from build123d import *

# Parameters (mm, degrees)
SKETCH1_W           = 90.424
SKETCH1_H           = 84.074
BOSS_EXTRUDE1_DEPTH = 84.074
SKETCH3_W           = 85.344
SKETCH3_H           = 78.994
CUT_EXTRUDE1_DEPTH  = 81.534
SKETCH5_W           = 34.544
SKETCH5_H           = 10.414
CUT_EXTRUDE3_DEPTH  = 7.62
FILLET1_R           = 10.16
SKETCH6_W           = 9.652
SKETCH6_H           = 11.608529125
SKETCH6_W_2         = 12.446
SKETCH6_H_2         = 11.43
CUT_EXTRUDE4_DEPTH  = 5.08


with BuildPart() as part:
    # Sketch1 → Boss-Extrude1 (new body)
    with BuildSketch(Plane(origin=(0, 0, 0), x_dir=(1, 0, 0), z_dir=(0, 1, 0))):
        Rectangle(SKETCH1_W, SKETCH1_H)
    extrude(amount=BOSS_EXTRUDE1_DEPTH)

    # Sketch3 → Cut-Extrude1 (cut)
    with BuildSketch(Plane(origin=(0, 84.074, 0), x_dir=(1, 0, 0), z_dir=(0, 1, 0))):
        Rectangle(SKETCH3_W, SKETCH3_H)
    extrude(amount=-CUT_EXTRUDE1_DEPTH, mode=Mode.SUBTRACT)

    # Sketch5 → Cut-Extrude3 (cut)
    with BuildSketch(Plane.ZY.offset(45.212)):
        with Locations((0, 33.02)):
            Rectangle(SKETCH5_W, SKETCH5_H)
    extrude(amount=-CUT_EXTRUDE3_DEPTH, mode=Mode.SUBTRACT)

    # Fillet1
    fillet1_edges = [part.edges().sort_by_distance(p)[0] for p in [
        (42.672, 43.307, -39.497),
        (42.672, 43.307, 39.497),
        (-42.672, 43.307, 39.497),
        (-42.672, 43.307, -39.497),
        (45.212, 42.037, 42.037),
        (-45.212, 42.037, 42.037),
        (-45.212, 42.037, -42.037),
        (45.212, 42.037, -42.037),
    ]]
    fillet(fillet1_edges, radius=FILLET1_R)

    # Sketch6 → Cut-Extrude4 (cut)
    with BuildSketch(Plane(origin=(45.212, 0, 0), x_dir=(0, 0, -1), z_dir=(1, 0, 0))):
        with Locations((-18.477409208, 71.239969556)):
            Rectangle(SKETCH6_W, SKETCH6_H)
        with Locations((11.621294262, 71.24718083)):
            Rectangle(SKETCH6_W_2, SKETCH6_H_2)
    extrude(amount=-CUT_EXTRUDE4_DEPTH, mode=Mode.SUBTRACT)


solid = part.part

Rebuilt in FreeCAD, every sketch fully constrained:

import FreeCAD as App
import Part
import Sketcher
Q = App.Units.Quantity


def edges_at(feature, points):
    """Names of the edges that pass closest to the given points."""
    edges = feature.Shape.Edges
    near = lambda p: min(range(len(edges)), key=lambda i: edges[i].distToShape(Part.Vertex(*p))[0])
    return sorted({f"Edge{near(p) + 1}" for p in points})

doc = App.newDocument("Part")
body = doc.addObject("PartDesign::Body", "Body")

sketch1 = body.newObject("Sketcher::SketchObject", "Sketch")
sketch1.AttachmentSupport = (doc.getObject("XZ_Plane"), [""])
sketch1.MapMode = "FlatFace"
sketch1.addGeometry(Part.LineSegment(App.Vector(-45, -42, 0), App.Vector(-45, 42, 0)), False)
sketch1.addGeometry(Part.LineSegment(App.Vector(-45, 42, 0), App.Vector(45, 42, 0)), False)
sketch1.addGeometry(Part.LineSegment(App.Vector(45, 42, 0), App.Vector(45, -42, 0)), False)
sketch1.addGeometry(Part.LineSegment(App.Vector(45, -42, 0), App.Vector(-45, -42, 0)), False)
sketch1.addConstraint(Sketcher.Constraint("Coincident", 0, 2, 1, 1))
sketch1.addConstraint(Sketcher.Constraint("Coincident", 1, 2, 2, 1))
sketch1.addConstraint(Sketcher.Constraint("Coincident", 2, 2, 3, 1))
sketch1.addConstraint(Sketcher.Constraint("Coincident", 3, 2, 0, 1))
sketch1.addConstraint(Sketcher.Constraint("Vertical", 0))
sketch1.addConstraint(Sketcher.Constraint("Horizontal", 1))
sketch1.addConstraint(Sketcher.Constraint("Vertical", 2))
sketch1.addConstraint(Sketcher.Constraint("Horizontal", 3))
sketch1.addConstraint(Sketcher.Constraint("Symmetric", 0, 2, 2, 2, -1, 1))
sketch1.addConstraint(Sketcher.Constraint("DistanceX", 1, 1, 1, 2, Q("3.56 in")))
sketch1.addConstraint(Sketcher.Constraint("DistanceY", 0, 1, 0, 2, Q("3.31 in")))
pad1 = body.newObject("PartDesign::Pad", "Pad")
pad1.Profile = sketch1
pad1.Length = Q("3.31 in")
pad1.Reversed = True

sketch2 = body.newObject("Sketcher::SketchObject", "Sketch001")
sketch2.AttachmentSupport = (doc.getObject("XZ_Plane"), [""])
sketch2.MapMode = "FlatFace"
sketch2.AttachmentOffset = App.Placement(App.Vector(0, 0, -3.31 * 25.4), App.Rotation())
sketch2.addGeometry(Part.LineSegment(App.Vector(-43, -39, 0), App.Vector(-43, 39, 0)), False)
sketch2.addGeometry(Part.LineSegment(App.Vector(-43, 39, 0), App.Vector(43, 39, 0)), False)
sketch2.addGeometry(Part.LineSegment(App.Vector(43, 39, 0), App.Vector(43, -39, 0)), False)
sketch2.addGeometry(Part.LineSegment(App.Vector(43, -39, 0), App.Vector(-43, -39, 0)), False)
sketch2.addConstraint(Sketcher.Constraint("Coincident", 0, 2, 1, 1))
sketch2.addConstraint(Sketcher.Constraint("Coincident", 1, 2, 2, 1))
sketch2.addConstraint(Sketcher.Constraint("Coincident", 2, 2, 3, 1))
sketch2.addConstraint(Sketcher.Constraint("Coincident", 3, 2, 0, 1))
sketch2.addConstraint(Sketcher.Constraint("Vertical", 0))
sketch2.addConstraint(Sketcher.Constraint("Horizontal", 1))
sketch2.addConstraint(Sketcher.Constraint("Vertical", 2))
sketch2.addConstraint(Sketcher.Constraint("Horizontal", 3))
sketch2.addConstraint(Sketcher.Constraint("Symmetric", 0, 2, 2, 2, -1, 1))
sketch2.addConstraint(Sketcher.Constraint("DistanceX", 1, 1, 1, 2, Q("3.36 in")))
sketch2.addConstraint(Sketcher.Constraint("DistanceY", 0, 1, 0, 2, Q("3.11 in")))
pocket1 = body.newObject("PartDesign::Pocket", "Pocket")
pocket1.Profile = sketch2
pocket1.Length = Q("3.21 in")
pocket1.Reversed = True

sketch3 = body.newObject("Sketcher::SketchObject", "Sketch002")
sketch3.AttachmentSupport = (doc.getObject("YZ_Plane"), [""])
sketch3.MapMode = "FlatFace"
sketch3.AttachmentOffset = App.Placement(App.Vector(0, 0, -1.78 * 25.4), App.Rotation())
sketch3.addGeometry(Part.LineSegment(App.Vector(38, -17, 0), App.Vector(28, -17, 0)), False)
sketch3.addGeometry(Part.LineSegment(App.Vector(28, -17, 0), App.Vector(28, 17, 0)), False)
sketch3.addGeometry(Part.LineSegment(App.Vector(28, 17, 0), App.Vector(38, 17, 0)), False)
sketch3.addGeometry(Part.LineSegment(App.Vector(38, 17, 0), App.Vector(38, -17, 0)), False)
sketch3.addConstraint(Sketcher.Constraint("Coincident", 0, 2, 1, 1))
sketch3.addConstraint(Sketcher.Constraint("Coincident", 1, 2, 2, 1))
sketch3.addConstraint(Sketcher.Constraint("Coincident", 2, 2, 3, 1))
sketch3.addConstraint(Sketcher.Constraint("Coincident", 3, 2, 0, 1))
sketch3.addConstraint(Sketcher.Constraint("Horizontal", 0))
sketch3.addConstraint(Sketcher.Constraint("Vertical", 1))
sketch3.addConstraint(Sketcher.Constraint("Horizontal", 2))
sketch3.addConstraint(Sketcher.Constraint("Vertical", 3))
sketch3.addConstraint(Sketcher.Constraint("DistanceX", 0, 2, 0, 1, Q("0.41 in")))
sketch3.addConstraint(Sketcher.Constraint("DistanceY", 1, 1, 1, 2, Q("1.36 in")))
sketch3.addConstraint(Sketcher.Constraint("DistanceY", 0, 2, -1, 1, Q("0.68 in")))
sketch3.addConstraint(Sketcher.Constraint("DistanceX", -1, 1, 0, 2, Q("1.095 in")))
pocket2 = body.newObject("PartDesign::Pocket", "Pocket001")
pocket2.Profile = sketch3
pocket2.Length = Q("0.3 in")
pocket2.Reversed = True
doc.recompute()

fillet = body.newObject("PartDesign::Fillet", "Fillet")
fillet.Base = (pocket2, edges_at(pocket2, [
    (42.672, 43.307, -39.497),
    (42.672, 43.307, 39.497),
    (-42.672, 43.307, 39.497),
    (-42.672, 43.307, -39.497),
    (45.212, 42.037, 42.037),
    (-45.212, 42.037, 42.037),
    (-45.212, 42.037, -42.037),
    (45.212, 42.037, -42.037),
]))
fillet.Radius = Q("0.4 in")

sketch4 = body.newObject("Sketcher::SketchObject", "Sketch003")
sketch4.AttachmentSupport = (doc.getObject("YZ_Plane"), [""])
sketch4.MapMode = "FlatFace"
sketch4.AttachmentOffset = App.Placement(App.Vector(0, 0, 1.78 * 25.4), App.Rotation())
sketch4.addGeometry(Part.LineSegment(App.Vector(77, 23, 0), App.Vector(65, 23, 0)), False)
sketch4.addGeometry(Part.LineSegment(App.Vector(65, 23, 0), App.Vector(65, 14, 0)), False)
sketch4.addGeometry(Part.LineSegment(App.Vector(65, 14, 0), App.Vector(77, 14, 0)), False)
sketch4.addGeometry(Part.LineSegment(App.Vector(77, 14, 0), App.Vector(77, 23, 0)), False)
sketch4.addGeometry(Part.LineSegment(App.Vector(77, -5, 0), App.Vector(66, -5, 0)), False)
sketch4.addGeometry(Part.LineSegment(App.Vector(66, -5, 0), App.Vector(66, -18, 0)), False)
sketch4.addGeometry(Part.LineSegment(App.Vector(66, -18, 0), App.Vector(77, -18, 0)), False)
sketch4.addGeometry(Part.LineSegment(App.Vector(77, -18, 0), App.Vector(77, -5, 0)), False)
sketch4.addConstraint(Sketcher.Constraint("Coincident", 0, 2, 1, 1))
sketch4.addConstraint(Sketcher.Constraint("Coincident", 1, 2, 2, 1))
sketch4.addConstraint(Sketcher.Constraint("Coincident", 2, 2, 3, 1))
sketch4.addConstraint(Sketcher.Constraint("Coincident", 3, 2, 0, 1))
sketch4.addConstraint(Sketcher.Constraint("Coincident", 4, 2, 5, 1))
sketch4.addConstraint(Sketcher.Constraint("Coincident", 5, 2, 6, 1))
sketch4.addConstraint(Sketcher.Constraint("Coincident", 6, 2, 7, 1))
sketch4.addConstraint(Sketcher.Constraint("Coincident", 7, 2, 4, 1))
sketch4.addConstraint(Sketcher.Constraint("Horizontal", 0))
sketch4.addConstraint(Sketcher.Constraint("Vertical", 1))
sketch4.addConstraint(Sketcher.Constraint("Horizontal", 2))
sketch4.addConstraint(Sketcher.Constraint("Vertical", 3))
sketch4.addConstraint(Sketcher.Constraint("Horizontal", 4))
sketch4.addConstraint(Sketcher.Constraint("Vertical", 5))
sketch4.addConstraint(Sketcher.Constraint("Horizontal", 6))
sketch4.addConstraint(Sketcher.Constraint("Vertical", 7))
sketch4.addConstraint(Sketcher.Constraint("DistanceX", 4, 2, 4, 1, Q("0.45 in")))
sketch4.addConstraint(Sketcher.Constraint("DistanceY", 1, 2, 1, 1, Q("0.38 in")))
sketch4.addConstraint(Sketcher.Constraint("DistanceY", 5, 2, 5, 1, Q("0.49 in")))
sketch4.addConstraint(Sketcher.Constraint("DistanceX", 0, 2, 0, 1, 11.608529))
sketch4.addConstraint(Sketcher.Constraint("DistanceY", -1, 1, 0, 2, 23.303409))
sketch4.addConstraint(Sketcher.Constraint("DistanceX", -1, 1, 4, 2, 65.532181))
sketch4.addConstraint(Sketcher.Constraint("DistanceX", -1, 1, 0, 2, 65.435705))
sketch4.addConstraint(Sketcher.Constraint("DistanceY", 4, 2, -1, 1, 5.398294))
pocket3 = body.newObject("PartDesign::Pocket", "Pocket002")
pocket3.Profile = sketch4
pocket3.Length = Q("0.2 in")

doc.recompute()
